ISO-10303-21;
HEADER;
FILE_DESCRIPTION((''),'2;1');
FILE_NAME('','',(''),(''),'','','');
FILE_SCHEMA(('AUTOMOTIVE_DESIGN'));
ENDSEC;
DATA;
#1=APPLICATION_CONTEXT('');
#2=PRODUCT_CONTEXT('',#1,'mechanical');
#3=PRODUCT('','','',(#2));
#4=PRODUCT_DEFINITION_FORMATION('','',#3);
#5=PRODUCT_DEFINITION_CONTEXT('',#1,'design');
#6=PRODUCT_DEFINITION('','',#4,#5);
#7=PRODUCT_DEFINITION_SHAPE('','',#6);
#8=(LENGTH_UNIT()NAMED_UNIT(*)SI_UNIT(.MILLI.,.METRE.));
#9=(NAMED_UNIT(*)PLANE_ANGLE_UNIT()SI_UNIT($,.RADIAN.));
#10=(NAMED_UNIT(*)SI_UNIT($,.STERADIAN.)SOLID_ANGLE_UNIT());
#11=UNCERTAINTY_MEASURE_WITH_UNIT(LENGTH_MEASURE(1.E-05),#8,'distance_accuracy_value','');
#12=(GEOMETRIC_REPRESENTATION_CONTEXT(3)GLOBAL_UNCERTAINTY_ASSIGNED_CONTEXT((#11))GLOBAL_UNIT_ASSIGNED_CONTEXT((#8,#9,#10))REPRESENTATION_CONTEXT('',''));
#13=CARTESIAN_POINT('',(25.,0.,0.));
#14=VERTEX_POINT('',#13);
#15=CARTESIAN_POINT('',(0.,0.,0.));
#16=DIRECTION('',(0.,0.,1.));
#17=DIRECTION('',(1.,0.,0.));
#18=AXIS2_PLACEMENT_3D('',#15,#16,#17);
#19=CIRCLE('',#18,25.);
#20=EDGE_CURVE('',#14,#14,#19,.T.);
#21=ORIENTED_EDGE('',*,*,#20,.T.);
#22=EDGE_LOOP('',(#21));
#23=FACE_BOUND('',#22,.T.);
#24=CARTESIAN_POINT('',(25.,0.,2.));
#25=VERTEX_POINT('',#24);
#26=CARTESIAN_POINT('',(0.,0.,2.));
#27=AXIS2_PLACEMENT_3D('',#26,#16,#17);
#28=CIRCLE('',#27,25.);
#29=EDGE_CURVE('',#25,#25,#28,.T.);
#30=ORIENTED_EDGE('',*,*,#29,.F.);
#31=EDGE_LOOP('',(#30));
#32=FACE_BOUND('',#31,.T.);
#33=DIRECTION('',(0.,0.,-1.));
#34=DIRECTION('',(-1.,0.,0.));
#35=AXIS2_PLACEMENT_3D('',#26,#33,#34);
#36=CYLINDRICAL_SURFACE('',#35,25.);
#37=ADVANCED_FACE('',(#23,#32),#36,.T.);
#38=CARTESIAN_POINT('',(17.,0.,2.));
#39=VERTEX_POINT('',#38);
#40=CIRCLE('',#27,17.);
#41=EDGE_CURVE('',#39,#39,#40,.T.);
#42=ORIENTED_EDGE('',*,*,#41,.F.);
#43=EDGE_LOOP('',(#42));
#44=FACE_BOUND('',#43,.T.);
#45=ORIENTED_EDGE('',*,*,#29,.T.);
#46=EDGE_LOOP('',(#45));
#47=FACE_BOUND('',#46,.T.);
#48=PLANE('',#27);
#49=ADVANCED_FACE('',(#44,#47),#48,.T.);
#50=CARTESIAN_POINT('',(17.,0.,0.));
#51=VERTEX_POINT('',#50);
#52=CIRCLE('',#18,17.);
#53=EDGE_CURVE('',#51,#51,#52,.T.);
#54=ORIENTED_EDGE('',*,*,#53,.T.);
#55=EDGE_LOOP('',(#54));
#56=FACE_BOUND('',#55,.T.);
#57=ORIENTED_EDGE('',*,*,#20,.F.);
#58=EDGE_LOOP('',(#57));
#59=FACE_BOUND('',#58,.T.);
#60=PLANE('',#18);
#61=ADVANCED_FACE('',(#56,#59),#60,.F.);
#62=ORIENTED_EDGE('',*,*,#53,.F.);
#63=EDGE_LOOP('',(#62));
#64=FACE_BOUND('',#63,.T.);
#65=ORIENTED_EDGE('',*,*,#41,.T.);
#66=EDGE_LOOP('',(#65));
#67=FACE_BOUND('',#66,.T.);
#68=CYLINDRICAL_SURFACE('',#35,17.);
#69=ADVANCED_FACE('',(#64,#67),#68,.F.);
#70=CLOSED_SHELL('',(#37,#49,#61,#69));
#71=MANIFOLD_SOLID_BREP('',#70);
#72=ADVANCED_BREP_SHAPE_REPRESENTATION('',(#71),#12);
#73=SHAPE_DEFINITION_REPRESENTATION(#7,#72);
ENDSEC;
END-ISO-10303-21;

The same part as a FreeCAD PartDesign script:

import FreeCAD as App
import Part
import Sketcher

V = App.Vector
Q = App.Units.Quantity

doc = App.newDocument("Part")
body = doc.addObject("PartDesign::Body", "Body")

# Sketch on XY plane
sketch1 = doc.addObject("Sketcher::SketchObject", "Sketch")
body.addObject(sketch1)
sketch1.AttachmentSupport = (doc.XY_Plane, [""])
sketch1.MapMode = "FlatFace"
sketch1.addGeometry(Part.Circle(V(0, 0, 0), V(0, 0, 1), 25), False)
sketch1.addGeometry(Part.Circle(V(0, 0, 0), V(0, 0, 1), 17), False)
sketch1.addConstraint(Sketcher.Constraint("Coincident", 0, 3, -1, 1))
sketch1.addConstraint(Sketcher.Constraint("Coincident", 1, 3, -1, 1))
sketch1.addConstraint(Sketcher.Constraint("Diameter", 0, Q("50 mm")))
sketch1.addConstraint(Sketcher.Constraint("Diameter", 1, Q("34 mm")))
pad1 = doc.addObject("PartDesign::Pad", "Pad")
body.addObject(pad1)
pad1.Profile = sketch1
pad1.Length = 2

doc.recompute()
